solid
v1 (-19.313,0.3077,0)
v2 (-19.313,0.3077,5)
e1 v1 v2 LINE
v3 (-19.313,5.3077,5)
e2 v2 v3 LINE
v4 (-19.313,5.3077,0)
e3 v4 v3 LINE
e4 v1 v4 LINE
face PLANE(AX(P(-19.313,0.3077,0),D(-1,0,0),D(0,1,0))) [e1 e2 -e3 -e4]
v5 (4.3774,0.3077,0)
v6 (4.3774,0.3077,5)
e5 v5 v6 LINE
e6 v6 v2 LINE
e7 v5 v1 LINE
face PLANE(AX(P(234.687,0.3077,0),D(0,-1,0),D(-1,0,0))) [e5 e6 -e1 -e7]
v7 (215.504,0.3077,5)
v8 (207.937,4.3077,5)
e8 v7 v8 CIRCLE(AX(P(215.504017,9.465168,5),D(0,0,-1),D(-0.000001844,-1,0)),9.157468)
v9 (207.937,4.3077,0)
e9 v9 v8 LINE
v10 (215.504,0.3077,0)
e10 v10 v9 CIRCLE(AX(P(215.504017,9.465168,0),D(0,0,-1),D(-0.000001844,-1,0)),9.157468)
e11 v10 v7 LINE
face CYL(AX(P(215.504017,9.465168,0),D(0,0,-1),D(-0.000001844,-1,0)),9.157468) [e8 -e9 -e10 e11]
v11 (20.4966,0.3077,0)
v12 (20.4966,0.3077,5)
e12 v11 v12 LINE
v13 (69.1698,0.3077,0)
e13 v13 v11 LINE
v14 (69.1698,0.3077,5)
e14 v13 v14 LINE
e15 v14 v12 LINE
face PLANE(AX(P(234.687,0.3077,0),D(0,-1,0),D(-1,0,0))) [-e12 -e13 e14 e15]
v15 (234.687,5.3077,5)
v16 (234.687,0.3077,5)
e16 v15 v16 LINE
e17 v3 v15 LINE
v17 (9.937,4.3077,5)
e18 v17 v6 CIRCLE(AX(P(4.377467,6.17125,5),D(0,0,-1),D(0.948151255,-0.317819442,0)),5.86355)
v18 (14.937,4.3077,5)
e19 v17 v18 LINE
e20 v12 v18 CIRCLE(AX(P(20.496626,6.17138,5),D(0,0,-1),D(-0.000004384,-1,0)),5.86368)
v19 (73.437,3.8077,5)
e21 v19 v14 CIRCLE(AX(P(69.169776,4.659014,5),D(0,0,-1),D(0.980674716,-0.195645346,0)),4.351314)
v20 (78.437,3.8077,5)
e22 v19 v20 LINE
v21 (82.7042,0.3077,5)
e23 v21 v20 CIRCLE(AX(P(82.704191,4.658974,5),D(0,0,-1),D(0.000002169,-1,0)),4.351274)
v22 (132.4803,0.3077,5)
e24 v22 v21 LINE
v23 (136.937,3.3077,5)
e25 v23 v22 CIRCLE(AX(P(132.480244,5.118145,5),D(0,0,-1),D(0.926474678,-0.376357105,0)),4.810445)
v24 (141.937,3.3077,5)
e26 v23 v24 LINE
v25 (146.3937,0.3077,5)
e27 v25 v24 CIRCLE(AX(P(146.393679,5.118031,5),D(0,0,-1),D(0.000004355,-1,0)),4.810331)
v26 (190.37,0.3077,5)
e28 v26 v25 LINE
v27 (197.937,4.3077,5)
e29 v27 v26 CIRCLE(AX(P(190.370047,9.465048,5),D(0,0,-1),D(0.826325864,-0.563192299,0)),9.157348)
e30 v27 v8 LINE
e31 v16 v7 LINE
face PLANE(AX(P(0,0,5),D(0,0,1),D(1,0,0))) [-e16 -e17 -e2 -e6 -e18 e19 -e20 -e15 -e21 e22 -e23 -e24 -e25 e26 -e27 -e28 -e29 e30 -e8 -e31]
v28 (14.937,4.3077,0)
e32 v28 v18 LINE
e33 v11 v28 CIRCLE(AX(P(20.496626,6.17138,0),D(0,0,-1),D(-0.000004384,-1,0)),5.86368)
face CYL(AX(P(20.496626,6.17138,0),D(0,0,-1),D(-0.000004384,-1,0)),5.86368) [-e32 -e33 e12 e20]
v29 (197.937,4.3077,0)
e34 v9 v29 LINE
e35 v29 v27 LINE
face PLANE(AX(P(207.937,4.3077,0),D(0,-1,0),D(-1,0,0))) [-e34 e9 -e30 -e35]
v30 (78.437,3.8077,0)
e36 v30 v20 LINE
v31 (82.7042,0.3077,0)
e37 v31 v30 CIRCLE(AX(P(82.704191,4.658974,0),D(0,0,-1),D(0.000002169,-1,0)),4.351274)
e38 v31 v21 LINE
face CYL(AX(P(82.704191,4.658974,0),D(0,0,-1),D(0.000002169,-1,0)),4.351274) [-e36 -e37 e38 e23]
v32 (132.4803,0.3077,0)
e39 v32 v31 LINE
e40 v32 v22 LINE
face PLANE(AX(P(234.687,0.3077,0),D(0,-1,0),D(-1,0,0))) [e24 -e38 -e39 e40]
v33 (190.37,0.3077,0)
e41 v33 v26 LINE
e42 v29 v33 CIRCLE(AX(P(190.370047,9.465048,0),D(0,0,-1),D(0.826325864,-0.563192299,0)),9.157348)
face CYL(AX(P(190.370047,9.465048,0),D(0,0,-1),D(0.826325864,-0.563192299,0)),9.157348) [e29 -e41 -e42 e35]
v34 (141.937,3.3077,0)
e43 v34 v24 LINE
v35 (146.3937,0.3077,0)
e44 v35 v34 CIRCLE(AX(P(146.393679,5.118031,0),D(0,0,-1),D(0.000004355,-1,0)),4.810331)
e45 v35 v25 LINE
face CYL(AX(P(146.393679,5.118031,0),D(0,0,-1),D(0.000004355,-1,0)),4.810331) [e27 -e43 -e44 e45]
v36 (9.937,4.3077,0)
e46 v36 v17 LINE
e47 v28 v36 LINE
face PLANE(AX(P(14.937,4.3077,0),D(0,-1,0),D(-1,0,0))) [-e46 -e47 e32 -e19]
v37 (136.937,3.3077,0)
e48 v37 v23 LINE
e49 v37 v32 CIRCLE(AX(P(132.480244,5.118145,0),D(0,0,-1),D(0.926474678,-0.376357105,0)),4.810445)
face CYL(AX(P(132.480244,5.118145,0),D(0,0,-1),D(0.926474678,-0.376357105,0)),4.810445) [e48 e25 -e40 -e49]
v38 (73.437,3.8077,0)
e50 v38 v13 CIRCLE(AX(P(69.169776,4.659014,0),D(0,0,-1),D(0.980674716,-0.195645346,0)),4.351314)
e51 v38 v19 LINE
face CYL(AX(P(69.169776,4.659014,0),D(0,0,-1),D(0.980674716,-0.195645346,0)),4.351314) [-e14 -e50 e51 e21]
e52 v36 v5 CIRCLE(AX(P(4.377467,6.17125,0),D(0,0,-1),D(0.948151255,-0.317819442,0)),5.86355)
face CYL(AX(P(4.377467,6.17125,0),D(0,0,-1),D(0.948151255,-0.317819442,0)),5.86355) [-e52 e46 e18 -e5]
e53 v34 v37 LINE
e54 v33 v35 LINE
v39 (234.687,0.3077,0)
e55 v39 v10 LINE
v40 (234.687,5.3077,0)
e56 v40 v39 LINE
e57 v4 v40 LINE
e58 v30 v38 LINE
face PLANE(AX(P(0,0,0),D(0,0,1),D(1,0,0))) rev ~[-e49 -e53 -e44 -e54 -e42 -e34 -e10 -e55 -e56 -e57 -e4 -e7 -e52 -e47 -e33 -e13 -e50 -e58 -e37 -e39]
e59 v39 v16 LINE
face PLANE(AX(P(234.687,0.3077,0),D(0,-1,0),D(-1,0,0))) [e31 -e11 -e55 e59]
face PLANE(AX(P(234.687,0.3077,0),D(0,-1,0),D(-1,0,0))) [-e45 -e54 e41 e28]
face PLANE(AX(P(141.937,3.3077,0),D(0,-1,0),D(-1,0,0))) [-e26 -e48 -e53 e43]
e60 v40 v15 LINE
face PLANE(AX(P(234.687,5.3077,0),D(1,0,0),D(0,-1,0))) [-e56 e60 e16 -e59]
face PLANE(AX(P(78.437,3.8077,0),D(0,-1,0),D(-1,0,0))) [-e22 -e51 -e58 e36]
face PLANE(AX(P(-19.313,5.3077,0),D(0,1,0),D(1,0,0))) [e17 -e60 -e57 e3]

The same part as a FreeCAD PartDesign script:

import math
import FreeCAD as App
import Part
import Sketcher
Q = App.Units.Quantity

doc = App.newDocument("Part")
body = doc.addObject("PartDesign::Body", "Body")

# Sketch on XY plane
sketch1 = body.newObject("Sketcher::SketchObject", "Sketch")
sketch1.AttachmentSupport = (doc.getObject("XY_Plane"), [""])
sketch1.MapMode = "FlatFace"
sketch1.addGeometry([
    Part.LineSegment(App.Vector(235, 5, 0), App.Vector(-19, 5, 0)),
    Part.LineSegment(App.Vector(-19, 5, 0), App.Vector(-19, 0, 0)),
    Part.LineSegment(App.Vector(-19, 0, 0), App.Vector(235, 0, 0)),
    Part.LineSegment(App.Vector(235, 0, 0), App.Vector(235, 5, 0)),
], False)
sketch1.addConstraint([
    Sketcher.Constraint("Coincident", 0, 2, 1, 1),
    Sketcher.Constraint("Coincident", 1, 2, 2, 1),
    Sketcher.Constraint("Coincident", 2, 2, 3, 1),
    Sketcher.Constraint("Coincident", 3, 2, 0, 1),
    Sketcher.Constraint("Horizontal", 0),
    Sketcher.Constraint("Vertical", 1),
    Sketcher.Constraint("Horizontal", 2),
    Sketcher.Constraint("Vertical", 3),
    Sketcher.Constraint("DistanceX", 0, 2, 0, 1, Q("254 mm")),
    Sketcher.Constraint("DistanceY", 1, 2, 1, 1, Q("5 mm")),
    Sketcher.Constraint("DistanceX", 0, 2, -1, 1, Q("19.313 mm")),
    Sketcher.Constraint("DistanceY", -1, 1, 0, 2, Q("5.3077 mm")),
])
pad1 = body.newObject("PartDesign::Pad", "Pad")
pad1.Profile = sketch1
pad1.Length = 5

# Sketch on XY plane
sketch2 = body.newObject("Sketcher::SketchObject", "Sketch001")
sketch2.AttachmentSupport = (doc.getObject("XY_Plane"), [""])
sketch2.MapMode = "FlatFace"
sketch2.addGeometry([
    Part.LineSegment(App.Vector(215.5, 0.3, 0), App.Vector(190.4, 0.3, 0)),  # 0
    Part.ArcOfCircle(Part.Circle(App.Vector(190.4, 9.5, 0), App.Vector(0, 0, 1), 9.2), math.radians(-90), math.radians(-34)),  # 1
    Part.LineSegment(App.Vector(197.9, 4.3, 0), App.Vector(207.9, 4.3, 0)),  # 2
    Part.ArcOfCircle(Part.Circle(App.Vector(215.5, 9.5, 0), App.Vector(0, 0, 1), 9.2), math.radians(-146), math.radians(-90)),  # 3
    Part.LineSegment(App.Vector(146.4, 0.3, 0), App.Vector(132.5, 0.3, 0)),  # 4
    Part.ArcOfCircle(Part.Circle(App.Vector(132.5, 5.1, 0), App.Vector(0, 0, 1), 4.8), math.radians(-90), math.radians(-22)),  # 5
    Part.LineSegment(App.Vector(136.9, 3.3, 0), App.Vector(141.9, 3.3, 0)),  # 6
    Part.ArcOfCircle(Part.Circle(App.Vector(146.4, 5.1, 0), App.Vector(0, 0, 1), 4.8), math.radians(-158), math.radians(-90)),  # 7
    Part.LineSegment(App.Vector(82.7, 0.3, 0), App.Vector(69.2, 0.3, 0)),  # 8
    Part.ArcOfCircle(Part.Circle(App.Vector(69.2, 4.7, 0), App.Vector(0, 0, 1), 4.4), math.radians(-90), math.radians(-11)),  # 9
    Part.LineSegment(App.Vector(73.4, 3.8, 0), App.Vector(78.4, 3.8, 0)),  # 10
    Part.ArcOfCircle(Part.Circle(App.Vector(82.7, 4.7, 0), App.Vector(0, 0, 1), 4.4), math.radians(-169), math.radians(-90)),  # 11
    Part.LineSegment(App.Vector(20.5, 0.3, 0), App.Vector(4.4, 0.3, 0)),  # 12
    Part.ArcOfCircle(Part.Circle(App.Vector(4.4, 6.2, 0), App.Vector(0, 0, 1), 5.9), math.radians(-90), math.radians(-19)),  # 13
    Part.LineSegment(App.Vector(9.9, 4.3, 0), App.Vector(14.9, 4.3, 0)),  # 14
    Part.ArcOfCircle(Part.Circle(App.Vector(20.5, 6.2, 0), App.Vector(0, 0, 1), 5.9), math.radians(-161), math.radians(-90)),  # 15
], False)
sketch2.addConstraint([
    Sketcher.Constraint("Tangent", 0, 2, 1, 1),
    Sketcher.Constraint("Coincident", 1, 2, 2, 1),
    Sketcher.Constraint("Coincident", 2, 2, 3, 1),
    Sketcher.Constraint("Tangent", 3, 2, 0, 1),
    Sketcher.Constraint("Tangent", 4, 2, 5, 1),
    Sketcher.Constraint("Coincident", 5, 2, 6, 1),
    Sketcher.Constraint("Coincident", 6, 2, 7, 1),
    Sketcher.Constraint("Tangent", 7, 2, 4, 1),
    Sketcher.Constraint("Tangent", 8, 2, 9, 1),
    Sketcher.Constraint("Coincident", 9, 2, 10, 1),
    Sketcher.Constraint("Coincident", 10, 2, 11, 1),
    Sketcher.Constraint("Tangent", 11, 2, 8, 1),
    Sketcher.Constraint("Tangent", 12, 2, 13, 1),
    Sketcher.Constraint("Coincident", 13, 2, 14, 1),
    Sketcher.Constraint("Coincident", 14, 2, 15, 1),
    Sketcher.Constraint("Tangent", 15, 2, 12, 1),
    Sketcher.Constraint("Horizontal", 0),
    Sketcher.Constraint("Horizontal", 2),
    Sketcher.Constraint("Horizontal", 4),
    Sketcher.Constraint("Horizontal", 6),
    Sketcher.Constraint("Horizontal", 8),
    Sketcher.Constraint("Horizontal", 10),
    Sketcher.Constraint("Horizontal", 12),
    Sketcher.Constraint("Horizontal", 14),
    Sketcher.Constraint("Equal", 1, 3),
    Sketcher.Constraint("Equal", 5, 7),
    Sketcher.Constraint("Equal", 9, 11),
    Sketcher.Constraint("Equal", 13, 15),
    Sketcher.Constraint("Horizontal", 3, 2, 4, 2),
    Sketcher.Constraint("Horizontal", 7, 2, 8, 2),
    Sketcher.Constraint("Horizontal", 11, 2, 12, 2),
    Sketcher.Constraint("Horizontal", 2, 2, 13, 2),
    Sketcher.Constraint("Equal", 6, 10),
    Sketcher.Constraint("Equal", 10, 14),
    Sketcher.Constraint("DistanceX", 2, 1, 2, 2, Q("10 mm")),
    Sketcher.Constraint("DistanceX", 6, 1, 6, 2, Q("5 mm")),
    Sketcher.Constraint("DistanceY", 0, 2, 1, 2, Q("4 mm")),
    Sketcher.Constraint("DistanceY", 4, 2, 5, 2, Q("3 mm")),
    Sketcher.Constraint("Radius", 1, Q("9.1574 mm")),
    Sketcher.Constraint("Radius", 5, Q("4.8104 mm")),
    Sketcher.Constraint("Radius", 9, Q("4.3513 mm")),
    Sketcher.Constraint("Radius", 13, Q("5.8636 mm")),
    Sketcher.Constraint("DistanceY", 8, 2, 9, 2, Q("3.5 mm")),
    Sketcher.Constraint("DistanceX", -1, 1, 1, 3, Q("190.37 mm")),
    Sketcher.Constraint("DistanceY", -1, 1, 1, 3, Q("9.465 mm")),
    Sketcher.Constraint("DistanceX", -1, 1, 5, 2, Q("136.937 mm")),
    Sketcher.Constraint("DistanceX", -1, 1, 9, 2, Q("73.437 mm")),
    Sketcher.Constraint("DistanceX", -1, 1, 13, 2, Q("9.937 mm")),
])
pocket1 = body.newObject("PartDesign::Pocket", "Pocket")
pocket1.Profile = sketch2
pocket1.Type = "ThroughAll"
pocket1.Reversed = True

doc.recompute()
